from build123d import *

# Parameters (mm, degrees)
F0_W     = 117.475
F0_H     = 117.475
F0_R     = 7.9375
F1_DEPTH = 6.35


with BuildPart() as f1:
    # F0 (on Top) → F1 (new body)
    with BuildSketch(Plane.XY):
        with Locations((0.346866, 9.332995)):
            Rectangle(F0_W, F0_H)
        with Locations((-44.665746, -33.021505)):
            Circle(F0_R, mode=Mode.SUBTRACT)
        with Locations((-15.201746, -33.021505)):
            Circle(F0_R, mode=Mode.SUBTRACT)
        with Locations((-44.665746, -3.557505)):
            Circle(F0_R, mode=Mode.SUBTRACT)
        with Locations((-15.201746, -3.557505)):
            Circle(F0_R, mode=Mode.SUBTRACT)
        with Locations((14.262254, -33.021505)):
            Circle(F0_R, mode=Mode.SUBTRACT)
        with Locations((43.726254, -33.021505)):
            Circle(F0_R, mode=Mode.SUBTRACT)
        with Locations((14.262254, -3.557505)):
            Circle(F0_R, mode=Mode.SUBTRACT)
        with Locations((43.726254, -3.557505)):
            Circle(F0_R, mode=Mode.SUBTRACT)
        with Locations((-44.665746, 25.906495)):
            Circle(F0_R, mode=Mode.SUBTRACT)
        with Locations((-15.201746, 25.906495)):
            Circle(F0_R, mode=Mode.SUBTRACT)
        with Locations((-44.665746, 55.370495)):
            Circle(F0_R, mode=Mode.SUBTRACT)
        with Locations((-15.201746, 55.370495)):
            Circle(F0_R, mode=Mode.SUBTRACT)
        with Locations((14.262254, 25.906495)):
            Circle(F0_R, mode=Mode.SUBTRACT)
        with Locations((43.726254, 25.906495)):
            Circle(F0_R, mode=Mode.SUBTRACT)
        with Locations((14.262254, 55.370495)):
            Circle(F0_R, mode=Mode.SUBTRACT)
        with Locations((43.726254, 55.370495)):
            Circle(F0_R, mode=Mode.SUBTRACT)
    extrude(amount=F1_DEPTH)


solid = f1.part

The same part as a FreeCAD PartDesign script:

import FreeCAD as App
import Part
import Sketcher

V = App.Vector
Q = App.Units.Quantity

doc = App.newDocument("Part")
body = doc.addObject("PartDesign::Body", "Body")

sketch1 = body.newObject("Sketcher::SketchObject", "Sketch")
sketch1.AttachmentSupport = (doc.getObject("XY_Plane"), [""])
sketch1.MapMode = "FlatFace"
sketch1.addGeometry([
    Part.LineSegment(V(-58, 68, 0), V(-58, -49, 0)),
    Part.LineSegment(V(-58, -49, 0), V(59, -49, 0)),
    Part.LineSegment(V(59, -49, 0), V(59, 68, 0)),
    Part.LineSegment(V(59, 68, 0), V(-58, 68, 0)),
    Part.Circle(V(-45, -33, 0), V(0, 0, 1), 8),
    Part.Circle(V(-15, -33, 0), V(0, 0, 1), 8),
    Part.Circle(V(-45, -4, 0), V(0, 0, 1), 8),
    Part.Circle(V(-15, -4, 0), V(0, 0, 1), 8),
    Part.Circle(V(14, -33, 0), V(0, 0, 1), 8),
    Part.Circle(V(44, -33, 0), V(0, 0, 1), 8),
    Part.Circle(V(14, -4, 0), V(0, 0, 1), 8),
    Part.Circle(V(44, -4, 0), V(0, 0, 1), 8),
    Part.Circle(V(-45, 26, 0), V(0, 0, 1), 8),
    Part.Circle(V(-15, 26, 0), V(0, 0, 1), 8),
    Part.Circle(V(-45, 55, 0), V(0, 0, 1), 8),
    Part.Circle(V(-15, 55, 0), V(0, 0, 1), 8),
    Part.Circle(V(14, 26, 0), V(0, 0, 1), 8),
    Part.Circle(V(44, 26, 0), V(0, 0, 1), 8),
    Part.Circle(V(14, 55, 0), V(0, 0, 1), 8),
    Part.Circle(V(44, 55, 0), V(0, 0, 1), 8),
], False)
sketch1.addConstraint([
    Sketcher.Constraint("Coincident", 0, 2, 1, 1),
    Sketcher.Constraint("Coincident", 1, 2, 2, 1),
    Sketcher.Constraint("Coincident", 2, 2, 3, 1),
    Sketcher.Constraint("Coincident", 3, 2, 0, 1),
    Sketcher.Constraint("Vertical", 0),
    Sketcher.Constraint("Horizontal", 1),
    Sketcher.Constraint("Vertical", 2),
    Sketcher.Constraint("Horizontal", 3),
    Sketcher.Constraint("Equal", 4, 5),
    Sketcher.Constraint("Equal", 5, 6),
    Sketcher.Constraint("Equal", 6, 7),
    Sketcher.Constraint("Equal", 7, 8),
    Sketcher.Constraint("Equal", 8, 9),
    Sketcher.Constraint("Equal", 9, 10),
    Sketcher.Constraint("Equal", 10, 11),
    Sketcher.Constraint("Equal", 11, 12),
    Sketcher.Constraint("Equal", 12, 13),
    Sketcher.Constraint("Equal", 13, 14),
    Sketcher.Constraint("Equal", 14, 15),
    Sketcher.Constraint("Equal", 15, 16),
    Sketcher.Constraint("Equal", 16, 17),
    Sketcher.Constraint("Equal", 17, 18),
    Sketcher.Constraint("Equal", 18, 19),
    Sketcher.Constraint("Horizontal", 4, 3, 5, 3),
    Sketcher.Constraint("Horizontal", 6, 3, 7, 3),
    Sketcher.Constraint("Horizontal", 5, 3, 8, 3),
    Sketcher.Constraint("Horizontal", 8, 3, 9, 3),
    Sketcher.Constraint("Horizontal", 7, 3, 10, 3),
    Sketcher.Constraint("Horizontal", 10, 3, 11, 3),
    Sketcher.Constraint("Horizontal", 12, 3, 13, 3),
    Sketcher.Constraint("Horizontal", 14, 3, 15, 3),
    Sketcher.Constraint("Horizontal", 13, 3, 16, 3),
    Sketcher.Constraint("Horizontal", 16, 3, 17, 3),
    Sketcher.Constraint("Horizontal", 15, 3, 18, 3),
    Sketcher.Constraint("Horizontal", 18, 3, 19, 3),
    Sketcher.Constraint("Vertical", 4, 3, 6, 3),
    Sketcher.Constraint("Vertical", 5, 3, 7, 3),
    Sketcher.Constraint("Vertical", 8, 3, 10, 3),
    Sketcher.Constraint("Vertical", 9, 3, 11, 3),
    Sketcher.Constraint("Vertical", 6, 3, 12, 3),
    Sketcher.Constraint("Vertical", 7, 3, 13, 3),
    Sketcher.Constraint("Vertical", 12, 3, 14, 3),
    Sketcher.Constraint("Vertical", 13, 3, 15, 3),
    Sketcher.Constraint("Vertical", 10, 3, 16, 3),
    Sketcher.Constraint("Vertical", 11, 3, 17, 3),
    Sketcher.Constraint("Vertical", 16, 3, 18, 3),
    Sketcher.Constraint("Vertical", 17, 3, 19, 3),
    Sketcher.Constraint("Equal", 3, 0),
    Sketcher.Constraint("Diameter", 4, Q("0.625 in")),
    Sketcher.Constraint("DistanceY", 19, 3, 2, 2, Q("0.5 in")),
    Sketcher.Constraint("DistanceX", 1, 1, 1, 2, Q("4.625 in")),
    Sketcher.Constraint("DistanceX", 4, 3, 5, 3, Q("1.16 in")),
    Sketcher.Constraint("DistanceY", 4, 3, 6, 3, Q("1.16 in")),
    Sketcher.Constraint("DistanceX", 5, 3, 8, 3, Q("1.16 in")),
    Sketcher.Constraint("DistanceX", 8, 3, 9, 3, Q("1.16 in")),
    Sketcher.Constraint("DistanceY", 6, 3, 12, 3, Q("1.16 in")),
    Sketcher.Constraint("DistanceY", 12, 3, 14, 3, Q("1.16 in")),
    Sketcher.Constraint("DistanceX", 0, 2, 8, 3, 72.652888),
    Sketcher.Constraint("DistanceX", 4, 3, -1, 1, 44.665746),
    Sketcher.Constraint("DistanceY", 4, 3, -1, 1, 33.021505),
])
pad1 = body.newObject("PartDesign::Pad", "Pad")
pad1.Profile = sketch1
pad1.Length = Q("0.25 in")

doc.recompute()
